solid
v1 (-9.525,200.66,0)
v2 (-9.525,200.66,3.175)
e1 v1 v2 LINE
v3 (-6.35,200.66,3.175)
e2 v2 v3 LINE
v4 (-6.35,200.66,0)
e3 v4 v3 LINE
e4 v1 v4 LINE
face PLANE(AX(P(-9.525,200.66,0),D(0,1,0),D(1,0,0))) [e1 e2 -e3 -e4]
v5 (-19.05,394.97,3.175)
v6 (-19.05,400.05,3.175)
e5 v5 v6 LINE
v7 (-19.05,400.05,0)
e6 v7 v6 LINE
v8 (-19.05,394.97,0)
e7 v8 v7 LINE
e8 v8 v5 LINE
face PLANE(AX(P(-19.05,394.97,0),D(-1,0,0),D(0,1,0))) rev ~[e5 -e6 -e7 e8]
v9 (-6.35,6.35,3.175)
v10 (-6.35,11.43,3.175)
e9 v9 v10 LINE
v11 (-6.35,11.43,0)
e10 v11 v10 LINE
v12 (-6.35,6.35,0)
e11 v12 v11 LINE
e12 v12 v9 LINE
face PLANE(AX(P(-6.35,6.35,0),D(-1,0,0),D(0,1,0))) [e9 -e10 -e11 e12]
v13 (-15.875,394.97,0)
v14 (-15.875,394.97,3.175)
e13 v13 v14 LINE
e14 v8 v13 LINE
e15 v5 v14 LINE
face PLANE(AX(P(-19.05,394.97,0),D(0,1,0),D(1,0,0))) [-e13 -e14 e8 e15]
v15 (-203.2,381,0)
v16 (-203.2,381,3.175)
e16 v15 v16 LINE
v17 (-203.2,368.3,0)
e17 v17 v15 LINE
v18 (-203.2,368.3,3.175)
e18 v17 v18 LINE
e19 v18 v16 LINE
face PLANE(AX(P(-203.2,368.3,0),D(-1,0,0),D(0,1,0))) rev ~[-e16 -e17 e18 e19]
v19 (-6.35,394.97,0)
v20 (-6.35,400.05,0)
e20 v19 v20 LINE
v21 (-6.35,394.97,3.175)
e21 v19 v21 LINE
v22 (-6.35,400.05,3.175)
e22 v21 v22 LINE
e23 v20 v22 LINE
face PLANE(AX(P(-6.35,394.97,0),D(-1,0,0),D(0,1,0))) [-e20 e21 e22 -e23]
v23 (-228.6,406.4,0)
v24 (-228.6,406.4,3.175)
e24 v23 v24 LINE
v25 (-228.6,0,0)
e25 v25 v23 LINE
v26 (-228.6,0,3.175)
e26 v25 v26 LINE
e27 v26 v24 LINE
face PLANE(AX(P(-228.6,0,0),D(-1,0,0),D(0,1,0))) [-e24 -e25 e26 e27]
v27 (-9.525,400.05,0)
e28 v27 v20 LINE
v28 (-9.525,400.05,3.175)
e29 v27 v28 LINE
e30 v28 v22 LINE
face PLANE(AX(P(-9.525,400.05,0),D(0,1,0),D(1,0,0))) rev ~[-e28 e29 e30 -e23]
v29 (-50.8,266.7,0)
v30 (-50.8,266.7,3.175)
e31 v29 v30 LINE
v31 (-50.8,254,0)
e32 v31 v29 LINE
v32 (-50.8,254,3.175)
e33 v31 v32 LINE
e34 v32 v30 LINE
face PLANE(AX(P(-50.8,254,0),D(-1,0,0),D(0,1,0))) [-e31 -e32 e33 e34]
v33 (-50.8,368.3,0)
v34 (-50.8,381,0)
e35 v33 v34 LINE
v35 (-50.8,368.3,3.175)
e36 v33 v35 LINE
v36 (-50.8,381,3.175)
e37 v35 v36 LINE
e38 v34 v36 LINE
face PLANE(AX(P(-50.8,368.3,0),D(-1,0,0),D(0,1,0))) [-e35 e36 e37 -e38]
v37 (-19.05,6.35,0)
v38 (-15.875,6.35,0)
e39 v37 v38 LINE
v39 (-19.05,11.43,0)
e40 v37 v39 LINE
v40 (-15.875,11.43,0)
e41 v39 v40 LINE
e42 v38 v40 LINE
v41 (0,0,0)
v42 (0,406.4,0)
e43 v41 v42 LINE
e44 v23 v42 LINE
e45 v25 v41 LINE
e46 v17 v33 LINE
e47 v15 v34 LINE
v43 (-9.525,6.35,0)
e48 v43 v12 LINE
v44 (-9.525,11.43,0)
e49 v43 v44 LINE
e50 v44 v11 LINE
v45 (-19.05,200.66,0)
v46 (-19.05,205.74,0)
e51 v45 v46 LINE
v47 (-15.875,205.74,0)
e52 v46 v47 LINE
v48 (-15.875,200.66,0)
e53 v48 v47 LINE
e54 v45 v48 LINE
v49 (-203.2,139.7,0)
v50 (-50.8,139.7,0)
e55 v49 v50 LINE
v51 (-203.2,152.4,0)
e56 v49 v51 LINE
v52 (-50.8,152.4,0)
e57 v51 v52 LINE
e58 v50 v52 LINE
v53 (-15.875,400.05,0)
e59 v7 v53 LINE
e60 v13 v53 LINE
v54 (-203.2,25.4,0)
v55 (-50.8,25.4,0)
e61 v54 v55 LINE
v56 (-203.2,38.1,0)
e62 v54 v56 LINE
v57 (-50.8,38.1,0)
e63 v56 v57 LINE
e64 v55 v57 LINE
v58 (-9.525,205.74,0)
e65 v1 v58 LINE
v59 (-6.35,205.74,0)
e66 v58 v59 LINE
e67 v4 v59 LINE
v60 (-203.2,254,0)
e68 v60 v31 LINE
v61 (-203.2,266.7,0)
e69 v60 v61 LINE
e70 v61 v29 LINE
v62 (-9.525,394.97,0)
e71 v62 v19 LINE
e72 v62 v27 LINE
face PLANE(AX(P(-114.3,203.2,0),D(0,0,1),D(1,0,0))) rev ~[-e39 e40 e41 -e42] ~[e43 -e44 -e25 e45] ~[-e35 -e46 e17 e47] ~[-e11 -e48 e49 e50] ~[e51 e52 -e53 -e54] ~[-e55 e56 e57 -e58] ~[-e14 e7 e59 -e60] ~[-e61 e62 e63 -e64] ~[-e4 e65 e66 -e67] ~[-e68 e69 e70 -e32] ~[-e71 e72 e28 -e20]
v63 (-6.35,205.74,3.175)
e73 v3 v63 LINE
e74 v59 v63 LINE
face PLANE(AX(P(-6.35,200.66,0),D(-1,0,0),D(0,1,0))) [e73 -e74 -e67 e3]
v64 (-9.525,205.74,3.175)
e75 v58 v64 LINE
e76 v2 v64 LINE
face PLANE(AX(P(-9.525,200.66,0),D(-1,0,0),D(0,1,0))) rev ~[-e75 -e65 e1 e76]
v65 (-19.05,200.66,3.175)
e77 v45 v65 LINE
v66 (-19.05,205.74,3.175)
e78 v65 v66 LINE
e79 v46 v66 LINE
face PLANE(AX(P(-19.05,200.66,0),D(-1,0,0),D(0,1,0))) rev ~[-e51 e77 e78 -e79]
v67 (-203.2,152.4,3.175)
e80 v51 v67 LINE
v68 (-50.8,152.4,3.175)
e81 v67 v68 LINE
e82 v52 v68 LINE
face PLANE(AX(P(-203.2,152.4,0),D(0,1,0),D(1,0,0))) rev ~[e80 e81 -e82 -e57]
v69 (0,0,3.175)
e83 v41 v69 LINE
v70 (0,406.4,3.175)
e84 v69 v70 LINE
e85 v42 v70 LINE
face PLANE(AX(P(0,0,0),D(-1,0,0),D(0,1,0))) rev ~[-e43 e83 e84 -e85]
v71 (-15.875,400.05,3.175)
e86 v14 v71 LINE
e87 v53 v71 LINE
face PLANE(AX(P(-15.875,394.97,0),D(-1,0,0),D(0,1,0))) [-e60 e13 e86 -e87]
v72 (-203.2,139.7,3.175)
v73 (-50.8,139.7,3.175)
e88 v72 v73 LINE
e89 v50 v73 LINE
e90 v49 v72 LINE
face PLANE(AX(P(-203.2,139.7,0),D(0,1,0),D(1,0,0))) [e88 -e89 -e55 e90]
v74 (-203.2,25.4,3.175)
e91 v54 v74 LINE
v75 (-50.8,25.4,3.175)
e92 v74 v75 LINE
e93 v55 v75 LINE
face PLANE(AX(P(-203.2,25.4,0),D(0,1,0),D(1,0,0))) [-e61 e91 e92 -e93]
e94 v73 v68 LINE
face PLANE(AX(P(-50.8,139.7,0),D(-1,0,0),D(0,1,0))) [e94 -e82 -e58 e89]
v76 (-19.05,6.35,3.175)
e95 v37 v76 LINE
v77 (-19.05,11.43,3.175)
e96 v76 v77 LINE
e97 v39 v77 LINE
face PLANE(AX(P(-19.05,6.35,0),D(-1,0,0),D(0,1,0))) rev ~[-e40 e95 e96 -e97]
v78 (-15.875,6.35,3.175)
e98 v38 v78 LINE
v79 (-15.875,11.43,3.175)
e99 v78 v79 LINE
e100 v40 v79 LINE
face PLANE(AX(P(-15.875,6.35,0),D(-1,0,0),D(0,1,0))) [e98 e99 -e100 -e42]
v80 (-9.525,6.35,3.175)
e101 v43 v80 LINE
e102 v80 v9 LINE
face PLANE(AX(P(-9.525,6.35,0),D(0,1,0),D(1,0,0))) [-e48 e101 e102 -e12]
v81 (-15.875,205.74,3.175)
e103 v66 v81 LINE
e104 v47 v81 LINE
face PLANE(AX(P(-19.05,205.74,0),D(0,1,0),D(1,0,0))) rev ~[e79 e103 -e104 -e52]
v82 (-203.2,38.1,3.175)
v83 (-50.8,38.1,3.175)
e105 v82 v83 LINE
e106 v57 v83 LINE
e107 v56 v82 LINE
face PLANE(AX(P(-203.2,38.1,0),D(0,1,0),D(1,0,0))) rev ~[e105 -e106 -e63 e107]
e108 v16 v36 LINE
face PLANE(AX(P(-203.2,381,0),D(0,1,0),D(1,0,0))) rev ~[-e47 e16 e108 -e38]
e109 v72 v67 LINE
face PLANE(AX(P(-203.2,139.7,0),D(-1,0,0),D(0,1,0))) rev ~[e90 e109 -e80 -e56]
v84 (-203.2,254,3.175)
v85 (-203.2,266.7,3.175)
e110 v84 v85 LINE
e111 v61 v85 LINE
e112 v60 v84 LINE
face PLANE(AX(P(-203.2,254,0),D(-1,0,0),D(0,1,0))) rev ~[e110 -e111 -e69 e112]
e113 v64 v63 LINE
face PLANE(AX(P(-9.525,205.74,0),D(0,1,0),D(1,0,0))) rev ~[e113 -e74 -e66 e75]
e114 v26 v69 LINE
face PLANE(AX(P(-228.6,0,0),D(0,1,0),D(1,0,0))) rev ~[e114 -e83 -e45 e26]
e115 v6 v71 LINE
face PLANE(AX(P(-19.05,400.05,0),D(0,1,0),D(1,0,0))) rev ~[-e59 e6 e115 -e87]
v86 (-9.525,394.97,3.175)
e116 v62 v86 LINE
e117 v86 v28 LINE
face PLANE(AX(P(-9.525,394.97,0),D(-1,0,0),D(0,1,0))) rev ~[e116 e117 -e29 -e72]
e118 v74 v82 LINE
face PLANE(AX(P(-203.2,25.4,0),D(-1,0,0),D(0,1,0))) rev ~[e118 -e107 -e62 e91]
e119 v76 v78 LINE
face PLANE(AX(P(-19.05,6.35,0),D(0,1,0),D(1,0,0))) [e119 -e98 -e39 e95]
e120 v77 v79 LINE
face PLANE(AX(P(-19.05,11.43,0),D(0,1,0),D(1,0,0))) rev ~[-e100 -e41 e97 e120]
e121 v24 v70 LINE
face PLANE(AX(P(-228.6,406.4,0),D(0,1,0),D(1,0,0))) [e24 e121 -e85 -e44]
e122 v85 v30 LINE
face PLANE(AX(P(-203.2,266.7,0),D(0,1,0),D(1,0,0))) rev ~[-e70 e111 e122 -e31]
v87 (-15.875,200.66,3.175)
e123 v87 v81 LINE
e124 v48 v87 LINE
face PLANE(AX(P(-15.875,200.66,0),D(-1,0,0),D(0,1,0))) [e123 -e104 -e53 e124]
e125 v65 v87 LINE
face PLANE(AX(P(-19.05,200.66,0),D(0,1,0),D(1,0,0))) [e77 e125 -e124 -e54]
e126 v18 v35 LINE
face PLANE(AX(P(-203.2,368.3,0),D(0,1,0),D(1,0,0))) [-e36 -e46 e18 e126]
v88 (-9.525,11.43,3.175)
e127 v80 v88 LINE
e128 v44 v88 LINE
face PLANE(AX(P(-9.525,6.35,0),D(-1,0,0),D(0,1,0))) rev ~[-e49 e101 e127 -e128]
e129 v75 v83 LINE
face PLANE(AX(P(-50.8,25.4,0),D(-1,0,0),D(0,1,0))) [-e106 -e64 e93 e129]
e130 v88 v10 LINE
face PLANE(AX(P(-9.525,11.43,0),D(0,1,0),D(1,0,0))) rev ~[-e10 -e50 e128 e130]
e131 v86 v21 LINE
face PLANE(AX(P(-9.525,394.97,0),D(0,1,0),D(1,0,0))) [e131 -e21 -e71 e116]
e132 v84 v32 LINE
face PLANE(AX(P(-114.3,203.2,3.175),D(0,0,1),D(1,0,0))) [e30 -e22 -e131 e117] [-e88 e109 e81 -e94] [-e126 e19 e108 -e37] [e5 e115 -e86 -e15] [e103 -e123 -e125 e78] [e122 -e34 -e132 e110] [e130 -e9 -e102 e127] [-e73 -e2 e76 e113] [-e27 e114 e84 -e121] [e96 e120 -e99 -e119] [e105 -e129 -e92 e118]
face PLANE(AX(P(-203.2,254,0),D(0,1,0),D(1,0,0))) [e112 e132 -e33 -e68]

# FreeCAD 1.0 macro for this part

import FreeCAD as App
import Part
import Sketcher

V = App.Vector
Q = App.Units.Quantity

doc = App.newDocument("Part")
body = doc.addObject("PartDesign::Body", "Body")

# Sketch on XY plane
sketch1 = doc.addObject("Sketcher::SketchObject", "Sketch")
body.addObject(sketch1)
sketch1.AttachmentSupport = (doc.XY_Plane, [""])
sketch1.MapMode = "FlatFace"
sketch1.addGeometry([
    Part.LineSegment(V(-228.6, 406.4, 0), V(-228.6, 0, 0)),  # 0
    Part.LineSegment(V(-228.6, 0, 0), V(0, 0, 0)),  # 1
    Part.LineSegment(V(0, 0, 0), V(0, 406.4, 0)),  # 2
    Part.LineSegment(V(0, 406.4, 0), V(-228.6, 406.4, 0)),  # 3
    Part.LineSegment(V(-50.8, 25.4, 0), V(-203.2, 25.4, 0)),  # 4
    Part.LineSegment(V(-203.2, 25.4, 0), V(-203.2, 38.1, 0)),  # 5
    Part.LineSegment(V(-203.2, 38.1, 0), V(-50.8, 38.1, 0)),  # 6
    Part.LineSegment(V(-50.8, 38.1, 0), V(-50.8, 25.4, 0)),  # 7
    Part.LineSegment(V(-50.8, 139.7, 0), V(-203.2, 139.7, 0)),  # 8
    Part.LineSegment(V(-203.2, 139.7, 0), V(-203.2, 152.4, 0)),  # 9
    Part.LineSegment(V(-203.2, 152.4, 0), V(-50.8, 152.4, 0)),  # 10
    Part.LineSegment(V(-50.8, 152.4, 0), V(-50.8, 139.7, 0)),  # 11
    Part.LineSegment(V(-15.9, 6.3, 0), V(-19.1, 6.3, 0)),  # 12
    Part.LineSegment(V(-19.1, 6.3, 0), V(-19.1, 11.4, 0)),  # 13
    Part.LineSegment(V(-19.1, 11.4, 0), V(-15.9, 11.4, 0)),  # 14
    Part.LineSegment(V(-15.9, 11.4, 0), V(-15.9, 6.3, 0)),  # 15
    Part.LineSegment(V(-6.3, 6.3, 0), V(-9.5, 6.3, 0)),  # 16
    Part.LineSegment(V(-9.5, 6.3, 0), V(-9.5, 11.4, 0)),  # 17
    Part.LineSegment(V(-9.5, 11.4, 0), V(-6.3, 11.4, 0)),  # 18
    Part.LineSegment(V(-6.3, 11.4, 0), V(-6.3, 6.3, 0)),  # 19
    Part.LineSegment(V(-50.8, 254, 0), V(-203.2, 254, 0)),  # 20
    Part.LineSegment(V(-203.2, 254, 0), V(-203.2, 266.7, 0)),  # 21
    Part.LineSegment(V(-203.2, 266.7, 0), V(-50.8, 266.7, 0)),  # 22
    Part.LineSegment(V(-50.8, 266.7, 0), V(-50.8, 254, 0)),  # 23
    Part.LineSegment(V(-50.8, 368.3, 0), V(-203.2, 368.3, 0)),  # 24
    Part.LineSegment(V(-203.2, 368.3, 0), V(-203.2, 381, 0)),  # 25
    Part.LineSegment(V(-203.2, 381, 0), V(-50.8, 381, 0)),  # 26
    Part.LineSegment(V(-50.8, 381, 0), V(-50.8, 368.3, 0)),  # 27
    Part.LineSegment(V(-15.9, 200.7, 0), V(-19.1, 200.7, 0)),  # 28
    Part.LineSegment(V(-19.1, 200.7, 0), V(-19.1, 205.7, 0)),  # 29
    Part.LineSegment(V(-19.1, 205.7, 0), V(-15.9, 205.7, 0)),  # 30
    Part.LineSegment(V(-15.9, 205.7, 0), V(-15.9, 200.7, 0)),  # 31
    Part.LineSegment(V(-6.3, 200.7, 0), V(-9.5, 200.7, 0)),  # 32
    Part.LineSegment(V(-9.5, 200.7, 0), V(-9.5, 205.7, 0)),  # 33
    Part.LineSegment(V(-9.5, 205.7, 0), V(-6.3, 205.7, 0)),  # 34
    Part.LineSegment(V(-6.3, 205.7, 0), V(-6.3, 200.7, 0)),  # 35
    Part.LineSegment(V(-15.9, 395, 0), V(-19.1, 395, 0)),  # 36
    Part.LineSegment(V(-19.1, 395, 0), V(-19.1, 400.1, 0)),  # 37
    Part.LineSegment(V(-19.1, 400.1, 0), V(-15.9, 400.1, 0)),  # 38
    Part.LineSegment(V(-15.9, 400.1, 0), V(-15.9, 395, 0)),  # 39
    Part.LineSegment(V(-6.3, 395, 0), V(-9.5, 395, 0)),  # 40
    Part.LineSegment(V(-9.5, 395, 0), V(-9.5, 400.1, 0)),  # 41
    Part.LineSegment(V(-9.5, 400.1, 0), V(-6.3, 400.1, 0)),  # 42
    Part.LineSegment(V(-6.3, 400.1, 0), V(-6.3, 395, 0)),  # 43
], False)
sketch1.addConstraint([
    Sketcher.Constraint("Coincident", 0, 2, 1, 1),
    Sketcher.Constraint("Coincident", 1, 2, 2, 1),
    Sketcher.Constraint("Coincident", 2, 2, 3, 1),
    Sketcher.Constraint("Coincident", 3, 2, 0, 1),
    Sketcher.Constraint("Coincident", 4, 2, 5, 1),
    Sketcher.Constraint("Coincident", 5, 2, 6, 1),
    Sketcher.Constraint("Coincident", 6, 2, 7, 1),
    Sketcher.Constraint("Coincident", 7, 2, 4, 1),
    Sketcher.Constraint("Coincident", 8, 2, 9, 1),
    Sketcher.Constraint("Coincident", 9, 2, 10, 1),
    Sketcher.Constraint("Coincident", 10, 2, 11, 1),
    Sketcher.Constraint("Coincident", 11, 2, 8, 1),
    Sketcher.Constraint("Coincident", 12, 2, 13, 1),
    Sketcher.Constraint("Coincident", 13, 2, 14, 1),
    Sketcher.Constraint("Coincident", 14, 2, 15, 1),
    Sketcher.Constraint("Coincident", 15, 2, 12, 1),
    Sketcher.Constraint("Coincident", 16, 2, 17, 1),
    Sketcher.Constraint("Coincident", 17, 2, 18, 1),
    Sketcher.Constraint("Coincident", 18, 2, 19, 1),
    Sketcher.Constraint("Coincident", 19, 2, 16, 1),
    Sketcher.Constraint("Coincident", 20, 2, 21, 1),
    Sketcher.Constraint("Coincident", 21, 2, 22, 1),
    Sketcher.Constraint("Coincident", 22, 2, 23, 1),
    Sketcher.Constraint("Coincident", 23, 2, 20, 1),
    Sketcher.Constraint("Coincident", 24, 2, 25, 1),
    Sketcher.Constraint("Coincident", 25, 2, 26, 1),
    Sketcher.Constraint("Coincident", 26, 2, 27, 1),
    Sketcher.Constraint("Coincident", 27, 2, 24, 1),
    Sketcher.Constraint("Coincident", 28, 2, 29, 1),
    Sketcher.Constraint("Coincident", 29, 2, 30, 1),
    Sketcher.Constraint("Coincident", 30, 2, 31, 1),
    Sketcher.Constraint("Coincident", 31, 2, 28, 1),
    Sketcher.Constraint("Coincident", 32, 2, 33, 1),
    Sketcher.Constraint("Coincident", 33, 2, 34, 1),
    Sketcher.Constraint("Coincident", 34, 2, 35, 1),
    Sketcher.Constraint("Coincident", 35, 2, 32, 1),
    Sketcher.Constraint("Coincident", 36, 2, 37, 1),
    Sketcher.Constraint("Coincident", 37, 2, 38, 1),
    Sketcher.Constraint("Coincident", 38, 2, 39, 1),
    Sketcher.Constraint("Coincident", 39, 2, 36, 1),
    Sketcher.Constraint("Coincident", 40, 2, 41, 1),
    Sketcher.Constraint("Coincident", 41, 2, 42, 1),
    Sketcher.Constraint("Coincident", 42, 2, 43, 1),
    Sketcher.Constraint("Coincident", 43, 2, 40, 1),
    Sketcher.Constraint("Vertical", 0),
    Sketcher.Constraint("Horizontal", 1),
    Sketcher.Constraint("Vertical", 2),
    Sketcher.Constraint("Horizontal", 3),
    Sketcher.Constraint("Horizontal", 4),
    Sketcher.Constraint("Vertical", 5),
    Sketcher.Constraint("Horizontal", 6),
    Sketcher.Constraint("Vertical", 7),
    Sketcher.Constraint("Horizontal", 8),
    Sketcher.Constraint("Vertical", 9),
    Sketcher.Constraint("Horizontal", 10),
    Sketcher.Constraint("Vertical", 11),
    Sketcher.Constraint("Horizontal", 12),
    Sketcher.Constraint("Vertical", 13),
    Sketcher.Constraint("Horizontal", 14),
    Sketcher.Constraint("Vertical", 15),
    Sketcher.Constraint("Horizontal", 16),
    Sketcher.Constraint("Vertical", 17),
    Sketcher.Constraint("Horizontal", 18),
    Sketcher.Constraint("Vertical", 19),
    Sketcher.Constraint("Horizontal", 20),
    Sketcher.Constraint("Vertical", 21),
    Sketcher.Constraint("Horizontal", 22),
    Sketcher.Constraint("Vertical", 23),
    Sketcher.Constraint("Horizontal", 24),
    Sketcher.Constraint("Vertical", 25),
    Sketcher.Constraint("Horizontal", 26),
    Sketcher.Constraint("Vertical", 27),
    Sketcher.Constraint("Horizontal", 28),
    Sketcher.Constraint("Vertical", 29),
    Sketcher.Constraint("Horizontal", 30),
    Sketcher.Constraint("Vertical", 31),
    Sketcher.Constraint("Horizontal", 32),
    Sketcher.Constraint("Vertical", 33),
    Sketcher.Constraint("Horizontal", 34),
    Sketcher.Constraint("Vertical", 35),
    Sketcher.Constraint("Horizontal", 36),
    Sketcher.Constraint("Vertical", 37),
    Sketcher.Constraint("Horizontal", 38),
    Sketcher.Constraint("Vertical", 39),
    Sketcher.Constraint("Horizontal", 40),
    Sketcher.Constraint("Vertical", 41),
    Sketcher.Constraint("Horizontal", 42),
    Sketcher.Constraint("Vertical", 43),
    Sketcher.Constraint("Coincident", 1, 2, -1, 1),
    Sketcher.Constraint("Horizontal", 15, 2, 16, 2),
    Sketcher.Constraint("Horizontal", 14, 2, 17, 2),
    Sketcher.Constraint("Horizontal", 31, 2, 32, 2),
    Sketcher.Constraint("Horizontal", 30, 2, 33, 2),
    Sketcher.Constraint("Horizontal", 39, 2, 40, 2),
    Sketcher.Constraint("Horizontal", 38, 2, 41, 2),
    Sketcher.Constraint("Vertical", 5, 2, 8, 2),
    Sketcher.Constraint("Vertical", 7, 2, 10, 2),
    Sketcher.Constraint("Vertical", 9, 2, 20, 2),
    Sketcher.Constraint("Vertical", 11, 2, 22, 2),
    Sketcher.Constraint("Vertical", 21, 2, 24, 2),
    Sketcher.Constraint("Vertical", 23, 2, 26, 2),
    Sketcher.Constraint("Vertical", 13, 2, 28, 2),
    Sketcher.Constraint("Vertical", 15, 2, 30, 2),
    Sketcher.Constraint("Vertical", 17, 2, 32, 2),
    Sketcher.Constraint("Vertical", 19, 2, 34, 2),
    Sketcher.Constraint("Vertical", 29, 2, 36, 2),
    Sketcher.Constraint("Vertical", 31, 2, 38, 2),
    Sketcher.Constraint("Vertical", 33, 2, 40, 2),
    Sketcher.Constraint("Vertical", 35, 2, 42, 2),
    Sketcher.Constraint("Equal", 14, 16),
    Sketcher.Constraint("Equal", 7, 9),
    Sketcher.Constraint("Equal", 11, 21),
    Sketcher.Constraint("Equal", 23, 25),
    Sketcher.Constraint("Equal", 19, 29),
    Sketcher.Constraint("Equal", 35, 37),
    Sketcher.Constraint("DistanceX", 1, 1, 1, 2, Q("9 in")),
    Sketcher.Constraint("DistanceX", 4, 2, 4, 1, Q("6 in")),
    Sketcher.Constraint("DistanceY", 0, 2, 0, 1, Q("16 in")),
    Sketcher.Constraint("DistanceY", 5, 1, 5, 2, Q("0.5 in")),
    Sketcher.Constraint("DistanceY", 13, 1, 13, 2, Q("0.2 in")),
    Sketcher.Constraint("DistanceX", 4, 2, -1, 1, Q("8 in")),
    Sketcher.Constraint("DistanceY", -1, 1, 4, 2, Q("1 in")),
    Sketcher.Constraint("DistanceY", -1, 1, 9, 2, Q("6 in")),
    Sketcher.Constraint("DistanceY", -1, 1, 20, 2, Q("10 in")),
    Sketcher.Constraint("DistanceY", -1, 1, 25, 2, Q("15 in")),
    Sketcher.Constraint("DistanceY", -1, 1, 28, 2, Q("7.9 in")),
    Sketcher.Constraint("DistanceX", 13, 2, 18, 2, Q("0.5 in")),
    Sketcher.Constraint("DistanceX", 12, 2, 12, 1, Q("0.125 in")),
    Sketcher.Constraint("DistanceX", 12, 2, -1, 1, Q("0.75 in")),
    Sketcher.Constraint("DistanceY", -1, 1, 12, 2, Q("0.25 in")),
    Sketcher.Constraint("DistanceY", -1, 1, 36, 2, Q("15.55 in")),
])
pad1 = doc.addObject("PartDesign::Pad", "Pad")
body.addObject(pad1)
pad1.Profile = sketch1
pad1.Length = Q("0.125 in")

doc.recompute()
